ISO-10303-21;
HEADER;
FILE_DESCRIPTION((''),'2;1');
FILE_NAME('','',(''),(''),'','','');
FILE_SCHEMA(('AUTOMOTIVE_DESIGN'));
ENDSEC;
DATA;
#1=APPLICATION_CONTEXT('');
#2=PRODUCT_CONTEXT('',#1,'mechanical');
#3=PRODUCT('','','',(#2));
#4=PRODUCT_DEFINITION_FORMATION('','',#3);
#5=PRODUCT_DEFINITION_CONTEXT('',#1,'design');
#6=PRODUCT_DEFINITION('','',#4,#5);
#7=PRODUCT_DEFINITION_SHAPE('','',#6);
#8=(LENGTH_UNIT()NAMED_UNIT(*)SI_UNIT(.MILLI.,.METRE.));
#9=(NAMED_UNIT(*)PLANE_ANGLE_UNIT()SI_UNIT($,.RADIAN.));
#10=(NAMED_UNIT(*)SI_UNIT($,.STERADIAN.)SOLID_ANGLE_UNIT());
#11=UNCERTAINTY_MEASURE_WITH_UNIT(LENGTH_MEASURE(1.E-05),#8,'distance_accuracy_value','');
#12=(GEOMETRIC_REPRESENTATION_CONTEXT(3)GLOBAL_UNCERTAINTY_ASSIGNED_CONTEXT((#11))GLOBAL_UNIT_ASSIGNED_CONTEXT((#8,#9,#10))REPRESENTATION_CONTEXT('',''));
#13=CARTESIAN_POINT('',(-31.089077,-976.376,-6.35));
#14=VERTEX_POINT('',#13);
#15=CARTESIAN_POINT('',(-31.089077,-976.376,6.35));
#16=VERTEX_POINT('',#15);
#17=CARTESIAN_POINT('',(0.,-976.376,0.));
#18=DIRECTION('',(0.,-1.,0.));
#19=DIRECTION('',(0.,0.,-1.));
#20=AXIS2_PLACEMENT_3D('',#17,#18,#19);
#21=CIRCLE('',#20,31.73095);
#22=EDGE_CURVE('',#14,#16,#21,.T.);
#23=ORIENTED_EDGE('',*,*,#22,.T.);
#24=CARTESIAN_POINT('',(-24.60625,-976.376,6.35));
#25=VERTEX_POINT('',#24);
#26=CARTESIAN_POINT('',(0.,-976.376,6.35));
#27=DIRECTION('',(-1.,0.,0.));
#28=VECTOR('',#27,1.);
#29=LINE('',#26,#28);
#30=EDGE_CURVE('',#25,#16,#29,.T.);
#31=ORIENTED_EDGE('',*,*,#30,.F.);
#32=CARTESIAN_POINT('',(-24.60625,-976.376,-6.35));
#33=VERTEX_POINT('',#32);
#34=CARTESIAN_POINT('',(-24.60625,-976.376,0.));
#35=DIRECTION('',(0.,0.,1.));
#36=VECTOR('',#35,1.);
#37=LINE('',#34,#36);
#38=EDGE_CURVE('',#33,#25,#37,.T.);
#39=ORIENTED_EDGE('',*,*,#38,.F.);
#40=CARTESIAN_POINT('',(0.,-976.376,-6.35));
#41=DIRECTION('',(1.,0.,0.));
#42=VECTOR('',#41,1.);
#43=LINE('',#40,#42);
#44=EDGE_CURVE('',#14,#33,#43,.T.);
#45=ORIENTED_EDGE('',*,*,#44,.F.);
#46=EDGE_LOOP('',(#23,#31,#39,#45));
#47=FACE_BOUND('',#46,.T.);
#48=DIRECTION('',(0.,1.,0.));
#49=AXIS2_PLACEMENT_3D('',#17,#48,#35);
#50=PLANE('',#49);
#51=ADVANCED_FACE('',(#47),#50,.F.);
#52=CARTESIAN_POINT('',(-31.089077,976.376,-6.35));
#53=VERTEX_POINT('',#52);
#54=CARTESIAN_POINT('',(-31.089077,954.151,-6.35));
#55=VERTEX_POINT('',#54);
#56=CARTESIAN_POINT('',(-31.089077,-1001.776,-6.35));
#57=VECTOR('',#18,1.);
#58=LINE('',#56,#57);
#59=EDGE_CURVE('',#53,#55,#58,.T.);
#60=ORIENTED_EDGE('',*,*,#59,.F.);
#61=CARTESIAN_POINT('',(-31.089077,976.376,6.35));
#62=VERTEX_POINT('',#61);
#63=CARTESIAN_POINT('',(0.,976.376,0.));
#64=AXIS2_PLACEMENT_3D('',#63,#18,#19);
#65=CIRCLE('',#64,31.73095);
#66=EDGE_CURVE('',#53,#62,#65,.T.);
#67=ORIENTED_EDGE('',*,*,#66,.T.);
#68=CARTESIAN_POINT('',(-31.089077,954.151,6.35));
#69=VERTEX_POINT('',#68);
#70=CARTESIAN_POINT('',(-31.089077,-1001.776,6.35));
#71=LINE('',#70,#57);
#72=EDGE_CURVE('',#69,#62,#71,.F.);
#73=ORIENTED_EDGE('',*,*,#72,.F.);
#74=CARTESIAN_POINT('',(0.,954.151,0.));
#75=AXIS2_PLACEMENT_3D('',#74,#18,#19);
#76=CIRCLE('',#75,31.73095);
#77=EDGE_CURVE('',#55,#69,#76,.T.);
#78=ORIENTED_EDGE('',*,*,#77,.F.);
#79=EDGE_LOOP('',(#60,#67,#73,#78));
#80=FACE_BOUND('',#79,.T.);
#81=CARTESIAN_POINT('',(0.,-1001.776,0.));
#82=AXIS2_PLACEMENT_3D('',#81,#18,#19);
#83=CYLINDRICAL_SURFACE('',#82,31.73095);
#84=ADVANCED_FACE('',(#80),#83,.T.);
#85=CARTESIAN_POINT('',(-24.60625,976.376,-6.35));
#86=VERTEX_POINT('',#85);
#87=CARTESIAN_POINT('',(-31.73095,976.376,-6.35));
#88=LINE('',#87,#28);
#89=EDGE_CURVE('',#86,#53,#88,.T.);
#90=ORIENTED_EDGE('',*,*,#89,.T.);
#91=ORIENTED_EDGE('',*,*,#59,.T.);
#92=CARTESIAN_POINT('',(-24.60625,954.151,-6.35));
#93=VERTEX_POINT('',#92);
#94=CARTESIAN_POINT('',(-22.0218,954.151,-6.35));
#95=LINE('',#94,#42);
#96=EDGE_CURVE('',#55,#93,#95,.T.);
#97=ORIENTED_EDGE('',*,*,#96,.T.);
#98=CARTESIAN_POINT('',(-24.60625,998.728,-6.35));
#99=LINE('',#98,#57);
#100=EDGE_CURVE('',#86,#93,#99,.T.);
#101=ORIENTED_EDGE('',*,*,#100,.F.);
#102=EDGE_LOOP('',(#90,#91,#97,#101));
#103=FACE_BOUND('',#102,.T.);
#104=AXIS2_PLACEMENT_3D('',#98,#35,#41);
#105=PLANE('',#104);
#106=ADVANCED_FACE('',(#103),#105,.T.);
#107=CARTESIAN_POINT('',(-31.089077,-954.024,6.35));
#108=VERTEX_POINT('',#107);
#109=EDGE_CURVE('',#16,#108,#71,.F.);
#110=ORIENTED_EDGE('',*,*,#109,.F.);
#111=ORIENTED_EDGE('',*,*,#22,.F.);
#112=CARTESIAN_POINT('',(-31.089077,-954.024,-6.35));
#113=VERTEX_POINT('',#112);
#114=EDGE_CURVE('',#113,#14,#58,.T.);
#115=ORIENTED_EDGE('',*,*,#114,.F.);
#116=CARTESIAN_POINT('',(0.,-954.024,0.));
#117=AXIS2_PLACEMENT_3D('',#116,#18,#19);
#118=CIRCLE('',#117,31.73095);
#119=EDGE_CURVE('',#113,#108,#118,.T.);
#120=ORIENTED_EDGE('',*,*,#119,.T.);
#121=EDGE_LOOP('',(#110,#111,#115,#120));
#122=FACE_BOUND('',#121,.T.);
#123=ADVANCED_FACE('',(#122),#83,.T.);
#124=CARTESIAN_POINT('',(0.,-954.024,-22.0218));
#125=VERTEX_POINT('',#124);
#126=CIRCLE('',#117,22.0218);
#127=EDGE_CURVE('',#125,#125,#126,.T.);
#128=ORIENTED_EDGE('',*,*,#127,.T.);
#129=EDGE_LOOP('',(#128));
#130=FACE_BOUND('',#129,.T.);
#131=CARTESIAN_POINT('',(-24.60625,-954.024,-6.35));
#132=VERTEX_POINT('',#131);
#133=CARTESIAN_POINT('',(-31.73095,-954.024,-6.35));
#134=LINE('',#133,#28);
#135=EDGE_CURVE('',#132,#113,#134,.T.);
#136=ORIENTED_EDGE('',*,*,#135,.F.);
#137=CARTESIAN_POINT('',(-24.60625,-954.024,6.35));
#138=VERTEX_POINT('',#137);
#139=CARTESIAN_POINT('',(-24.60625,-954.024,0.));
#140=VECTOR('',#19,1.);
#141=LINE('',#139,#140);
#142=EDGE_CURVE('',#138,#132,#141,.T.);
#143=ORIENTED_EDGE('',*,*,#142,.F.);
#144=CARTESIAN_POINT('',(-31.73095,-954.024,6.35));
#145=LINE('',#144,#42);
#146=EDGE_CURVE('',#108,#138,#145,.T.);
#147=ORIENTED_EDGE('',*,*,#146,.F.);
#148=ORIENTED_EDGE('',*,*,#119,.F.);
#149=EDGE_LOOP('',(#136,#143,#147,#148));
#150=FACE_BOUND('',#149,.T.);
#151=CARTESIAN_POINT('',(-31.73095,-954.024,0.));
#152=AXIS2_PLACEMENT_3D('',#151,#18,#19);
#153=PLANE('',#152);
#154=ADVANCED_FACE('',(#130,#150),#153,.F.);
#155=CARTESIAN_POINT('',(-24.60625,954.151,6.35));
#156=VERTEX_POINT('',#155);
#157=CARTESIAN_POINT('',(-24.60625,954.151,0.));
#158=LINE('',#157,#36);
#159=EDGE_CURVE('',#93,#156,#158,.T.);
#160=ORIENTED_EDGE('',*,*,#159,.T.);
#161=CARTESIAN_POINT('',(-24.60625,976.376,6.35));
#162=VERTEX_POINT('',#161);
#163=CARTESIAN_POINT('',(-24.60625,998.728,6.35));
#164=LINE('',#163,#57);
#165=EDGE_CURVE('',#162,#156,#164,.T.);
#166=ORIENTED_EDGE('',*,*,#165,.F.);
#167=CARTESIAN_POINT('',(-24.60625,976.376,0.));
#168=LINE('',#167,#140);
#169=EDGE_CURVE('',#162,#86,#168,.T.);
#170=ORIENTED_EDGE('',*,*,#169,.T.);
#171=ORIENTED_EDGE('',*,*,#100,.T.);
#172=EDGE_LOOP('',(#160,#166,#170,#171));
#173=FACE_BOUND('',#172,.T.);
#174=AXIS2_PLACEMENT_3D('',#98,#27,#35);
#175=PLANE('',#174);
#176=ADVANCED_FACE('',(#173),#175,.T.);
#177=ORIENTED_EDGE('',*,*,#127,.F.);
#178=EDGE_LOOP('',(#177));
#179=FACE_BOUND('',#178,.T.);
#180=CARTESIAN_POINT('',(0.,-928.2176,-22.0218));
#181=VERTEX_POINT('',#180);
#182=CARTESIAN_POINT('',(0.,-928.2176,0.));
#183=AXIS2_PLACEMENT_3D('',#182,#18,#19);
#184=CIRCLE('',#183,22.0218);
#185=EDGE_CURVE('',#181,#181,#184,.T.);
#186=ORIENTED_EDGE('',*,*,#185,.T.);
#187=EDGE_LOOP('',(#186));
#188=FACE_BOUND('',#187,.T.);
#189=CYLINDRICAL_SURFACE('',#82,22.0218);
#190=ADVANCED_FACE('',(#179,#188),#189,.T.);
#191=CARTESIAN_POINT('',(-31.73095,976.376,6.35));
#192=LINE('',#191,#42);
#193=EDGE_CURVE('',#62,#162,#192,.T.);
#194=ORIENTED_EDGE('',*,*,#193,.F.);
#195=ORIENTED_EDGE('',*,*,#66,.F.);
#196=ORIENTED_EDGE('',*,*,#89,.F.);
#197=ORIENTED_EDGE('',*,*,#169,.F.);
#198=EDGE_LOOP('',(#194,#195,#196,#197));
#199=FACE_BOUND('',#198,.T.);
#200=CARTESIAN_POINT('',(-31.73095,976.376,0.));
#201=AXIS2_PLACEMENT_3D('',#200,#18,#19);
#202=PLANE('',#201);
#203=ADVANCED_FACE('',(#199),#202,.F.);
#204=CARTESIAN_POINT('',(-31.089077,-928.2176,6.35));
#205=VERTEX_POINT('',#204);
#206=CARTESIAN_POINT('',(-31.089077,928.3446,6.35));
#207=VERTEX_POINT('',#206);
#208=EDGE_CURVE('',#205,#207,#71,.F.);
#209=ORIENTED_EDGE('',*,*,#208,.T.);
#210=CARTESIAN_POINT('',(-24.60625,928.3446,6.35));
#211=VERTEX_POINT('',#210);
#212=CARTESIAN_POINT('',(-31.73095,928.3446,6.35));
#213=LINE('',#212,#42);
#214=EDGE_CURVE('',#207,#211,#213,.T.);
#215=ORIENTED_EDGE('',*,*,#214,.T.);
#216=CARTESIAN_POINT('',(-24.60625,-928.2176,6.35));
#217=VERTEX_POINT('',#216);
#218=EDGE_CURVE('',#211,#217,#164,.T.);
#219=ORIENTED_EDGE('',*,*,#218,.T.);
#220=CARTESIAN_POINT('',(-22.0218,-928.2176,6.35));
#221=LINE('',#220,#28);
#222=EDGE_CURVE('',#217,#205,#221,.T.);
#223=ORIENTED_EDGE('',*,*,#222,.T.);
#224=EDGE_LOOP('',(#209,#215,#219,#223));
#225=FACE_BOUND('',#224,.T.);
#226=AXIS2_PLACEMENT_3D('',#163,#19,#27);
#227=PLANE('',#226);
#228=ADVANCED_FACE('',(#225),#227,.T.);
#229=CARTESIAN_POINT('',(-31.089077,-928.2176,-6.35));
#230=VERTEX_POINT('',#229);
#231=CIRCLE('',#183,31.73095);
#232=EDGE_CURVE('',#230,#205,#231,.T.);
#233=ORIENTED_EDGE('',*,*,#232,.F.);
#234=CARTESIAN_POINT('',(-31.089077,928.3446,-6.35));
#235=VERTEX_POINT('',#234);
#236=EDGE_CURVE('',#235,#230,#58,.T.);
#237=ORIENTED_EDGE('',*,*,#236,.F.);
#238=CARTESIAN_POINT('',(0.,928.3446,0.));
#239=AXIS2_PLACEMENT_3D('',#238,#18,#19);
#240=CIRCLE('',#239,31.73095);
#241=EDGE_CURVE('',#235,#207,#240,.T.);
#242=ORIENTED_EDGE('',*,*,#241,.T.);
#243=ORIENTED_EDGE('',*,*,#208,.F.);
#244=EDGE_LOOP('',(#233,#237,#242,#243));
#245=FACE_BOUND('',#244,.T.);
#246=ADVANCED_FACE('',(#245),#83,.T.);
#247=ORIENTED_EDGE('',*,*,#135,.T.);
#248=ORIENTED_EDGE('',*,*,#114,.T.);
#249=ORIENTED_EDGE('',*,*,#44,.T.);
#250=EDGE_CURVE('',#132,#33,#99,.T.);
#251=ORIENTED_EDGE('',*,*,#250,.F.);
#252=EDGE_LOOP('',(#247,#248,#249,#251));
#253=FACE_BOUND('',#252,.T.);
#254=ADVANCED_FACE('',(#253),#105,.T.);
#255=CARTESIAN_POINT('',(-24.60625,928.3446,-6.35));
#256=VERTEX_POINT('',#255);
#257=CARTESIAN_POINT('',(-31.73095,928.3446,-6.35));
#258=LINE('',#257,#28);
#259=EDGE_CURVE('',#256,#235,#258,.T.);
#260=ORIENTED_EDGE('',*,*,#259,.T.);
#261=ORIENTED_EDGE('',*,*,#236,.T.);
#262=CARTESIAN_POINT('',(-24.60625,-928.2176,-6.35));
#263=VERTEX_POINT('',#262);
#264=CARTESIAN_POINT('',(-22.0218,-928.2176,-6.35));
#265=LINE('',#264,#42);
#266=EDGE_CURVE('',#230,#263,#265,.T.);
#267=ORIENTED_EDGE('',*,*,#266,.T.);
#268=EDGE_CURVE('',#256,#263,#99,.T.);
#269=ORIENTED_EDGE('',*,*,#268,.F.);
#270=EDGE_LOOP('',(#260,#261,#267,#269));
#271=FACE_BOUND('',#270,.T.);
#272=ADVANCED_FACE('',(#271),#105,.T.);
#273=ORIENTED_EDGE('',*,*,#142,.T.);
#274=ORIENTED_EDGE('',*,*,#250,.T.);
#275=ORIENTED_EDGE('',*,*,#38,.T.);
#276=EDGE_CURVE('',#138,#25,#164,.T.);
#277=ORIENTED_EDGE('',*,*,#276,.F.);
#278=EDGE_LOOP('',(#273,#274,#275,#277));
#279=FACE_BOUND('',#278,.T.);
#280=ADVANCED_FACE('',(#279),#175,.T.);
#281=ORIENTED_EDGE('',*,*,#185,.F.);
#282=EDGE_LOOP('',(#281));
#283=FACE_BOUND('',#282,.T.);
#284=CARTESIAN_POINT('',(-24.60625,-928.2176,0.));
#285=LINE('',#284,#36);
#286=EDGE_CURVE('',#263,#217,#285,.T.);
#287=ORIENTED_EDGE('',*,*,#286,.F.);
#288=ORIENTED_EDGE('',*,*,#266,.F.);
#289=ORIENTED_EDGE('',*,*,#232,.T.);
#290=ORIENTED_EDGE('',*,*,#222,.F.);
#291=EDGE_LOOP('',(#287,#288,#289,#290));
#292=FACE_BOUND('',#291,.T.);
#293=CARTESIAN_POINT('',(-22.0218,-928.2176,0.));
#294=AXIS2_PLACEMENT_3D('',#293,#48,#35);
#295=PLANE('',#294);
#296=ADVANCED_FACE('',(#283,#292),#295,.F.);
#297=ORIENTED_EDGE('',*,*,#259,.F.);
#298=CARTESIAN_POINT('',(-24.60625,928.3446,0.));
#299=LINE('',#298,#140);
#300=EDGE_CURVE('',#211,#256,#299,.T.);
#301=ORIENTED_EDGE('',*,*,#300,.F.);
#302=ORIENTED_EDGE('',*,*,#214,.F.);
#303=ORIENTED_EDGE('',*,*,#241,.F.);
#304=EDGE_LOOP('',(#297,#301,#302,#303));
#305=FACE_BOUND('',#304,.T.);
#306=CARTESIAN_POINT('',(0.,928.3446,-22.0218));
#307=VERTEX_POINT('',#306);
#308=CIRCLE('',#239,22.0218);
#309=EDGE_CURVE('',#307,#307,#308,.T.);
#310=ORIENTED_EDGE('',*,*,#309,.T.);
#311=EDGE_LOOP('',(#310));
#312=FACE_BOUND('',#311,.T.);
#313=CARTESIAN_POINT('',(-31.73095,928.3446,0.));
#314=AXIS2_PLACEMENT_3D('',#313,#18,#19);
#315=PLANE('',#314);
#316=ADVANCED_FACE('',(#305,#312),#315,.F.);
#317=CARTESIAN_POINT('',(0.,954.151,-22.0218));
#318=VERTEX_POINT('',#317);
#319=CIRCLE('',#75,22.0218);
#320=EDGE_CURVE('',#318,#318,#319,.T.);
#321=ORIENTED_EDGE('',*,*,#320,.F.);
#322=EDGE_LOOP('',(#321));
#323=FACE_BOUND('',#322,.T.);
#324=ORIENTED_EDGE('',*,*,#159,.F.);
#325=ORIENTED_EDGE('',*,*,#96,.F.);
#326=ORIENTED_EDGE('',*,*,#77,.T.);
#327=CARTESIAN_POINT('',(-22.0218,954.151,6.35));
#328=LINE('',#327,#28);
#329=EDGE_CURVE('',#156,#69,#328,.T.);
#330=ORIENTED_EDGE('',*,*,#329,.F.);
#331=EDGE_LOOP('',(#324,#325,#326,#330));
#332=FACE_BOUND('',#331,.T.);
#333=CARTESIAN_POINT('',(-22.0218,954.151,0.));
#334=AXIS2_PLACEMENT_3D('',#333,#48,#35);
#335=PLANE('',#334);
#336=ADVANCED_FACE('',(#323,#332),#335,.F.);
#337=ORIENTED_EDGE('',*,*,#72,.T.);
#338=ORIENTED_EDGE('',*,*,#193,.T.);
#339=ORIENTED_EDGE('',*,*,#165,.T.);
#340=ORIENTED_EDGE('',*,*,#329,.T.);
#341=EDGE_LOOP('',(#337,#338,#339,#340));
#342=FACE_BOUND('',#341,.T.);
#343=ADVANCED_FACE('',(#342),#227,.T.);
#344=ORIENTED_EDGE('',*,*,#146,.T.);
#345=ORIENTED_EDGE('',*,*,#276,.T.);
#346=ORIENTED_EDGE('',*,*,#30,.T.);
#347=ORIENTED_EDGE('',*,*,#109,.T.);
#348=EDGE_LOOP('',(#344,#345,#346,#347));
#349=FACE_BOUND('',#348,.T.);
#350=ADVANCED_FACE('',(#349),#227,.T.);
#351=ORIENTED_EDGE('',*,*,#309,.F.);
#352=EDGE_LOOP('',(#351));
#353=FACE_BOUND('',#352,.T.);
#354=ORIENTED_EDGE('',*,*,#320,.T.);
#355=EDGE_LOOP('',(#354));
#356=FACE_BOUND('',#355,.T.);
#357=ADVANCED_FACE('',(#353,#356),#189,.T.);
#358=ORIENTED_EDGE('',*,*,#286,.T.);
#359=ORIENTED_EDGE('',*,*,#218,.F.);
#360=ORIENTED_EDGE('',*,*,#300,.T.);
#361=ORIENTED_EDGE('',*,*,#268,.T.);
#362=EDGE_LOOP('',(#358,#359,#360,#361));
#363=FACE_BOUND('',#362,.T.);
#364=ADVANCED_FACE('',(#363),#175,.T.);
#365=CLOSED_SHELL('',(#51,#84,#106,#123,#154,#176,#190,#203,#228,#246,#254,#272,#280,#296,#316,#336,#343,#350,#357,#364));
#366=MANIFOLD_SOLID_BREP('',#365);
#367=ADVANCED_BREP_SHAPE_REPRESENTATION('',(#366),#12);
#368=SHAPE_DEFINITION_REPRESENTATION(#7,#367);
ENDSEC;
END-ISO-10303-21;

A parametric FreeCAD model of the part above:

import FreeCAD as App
import Part
import Sketcher
from FreeCAD import Vector
Q = App.Units.Quantity

doc = App.newDocument("Part")
body = doc.addObject("PartDesign::Body", "Body")

sketch1 = body.newObject("Sketcher::SketchObject", "Sketch")
sketch1.AttachmentSupport = (doc.getObject("XY_Plane"), [""])
sketch1.MapMode = "FlatFace"
sketch1.addGeometry(Part.LineSegment(Vector(-32, -976, 0), Vector(0, -976, 0)), False)
sketch1.addGeometry(Part.LineSegment(Vector(0, -976, 0), Vector(0, 976, 0)), False)
sketch1.addGeometry(Part.LineSegment(Vector(0, 976, 0), Vector(-32, 976, 0)), False)
sketch1.addGeometry(Part.LineSegment(Vector(-32, 976, 0), Vector(-32, 954, 0)), False)
sketch1.addGeometry(Part.LineSegment(Vector(-32, 954, 0), Vector(-22, 954, 0)), False)
sketch1.addGeometry(Part.LineSegment(Vector(-22, 954, 0), Vector(-22, 928, 0)), False)
sketch1.addGeometry(Part.LineSegment(Vector(-22, 928, 0), Vector(-32, 928, 0)), False)
sketch1.addGeometry(Part.LineSegment(Vector(-32, 928, 0), Vector(-32, -928, 0)), False)
sketch1.addGeometry(Part.LineSegment(Vector(-32, -928, 0), Vector(-22, -928, 0)), False)
sketch1.addGeometry(Part.LineSegment(Vector(-22, -928, 0), Vector(-22, -954, 0)), False)
sketch1.addGeometry(Part.LineSegment(Vector(-22, -954, 0), Vector(-32, -954, 0)), False)
sketch1.addGeometry(Part.LineSegment(Vector(-32, -954, 0), Vector(-32, -976, 0)), False)
sketch1.addConstraint(Sketcher.Constraint("Coincident", 0, 2, 1, 1))
sketch1.addConstraint(Sketcher.Constraint("Coincident", 1, 2, 2, 1))
sketch1.addConstraint(Sketcher.Constraint("Coincident", 2, 2, 3, 1))
sketch1.addConstraint(Sketcher.Constraint("Coincident", 3, 2, 4, 1))
sketch1.addConstraint(Sketcher.Constraint("Coincident", 4, 2, 5, 1))
sketch1.addConstraint(Sketcher.Constraint("Coincident", 5, 2, 6, 1))
sketch1.addConstraint(Sketcher.Constraint("Coincident", 6, 2, 7, 1))
sketch1.addConstraint(Sketcher.Constraint("Coincident", 7, 2, 8, 1))
sketch1.addConstraint(Sketcher.Constraint("Coincident", 8, 2, 9, 1))
sketch1.addConstraint(Sketcher.Constraint("Coincident", 9, 2, 10, 1))
sketch1.addConstraint(Sketcher.Constraint("Coincident", 10, 2, 11, 1))
sketch1.addConstraint(Sketcher.Constraint("Coincident", 11, 2, 0, 1))
sketch1.addConstraint(Sketcher.Constraint("Horizontal", 0))
sketch1.addConstraint(Sketcher.Constraint("Vertical", 1))
sketch1.addConstraint(Sketcher.Constraint("Horizontal", 2))
sketch1.addConstraint(Sketcher.Constraint("Vertical", 3))
sketch1.addConstraint(Sketcher.Constraint("Horizontal", 4))
sketch1.addConstraint(Sketcher.Constraint("Vertical", 5))
sketch1.addConstraint(Sketcher.Constraint("Horizontal", 6))
sketch1.addConstraint(Sketcher.Constraint("Vertical", 7))
sketch1.addConstraint(Sketcher.Constraint("Horizontal", 8))
sketch1.addConstraint(Sketcher.Constraint("Vertical", 9))
sketch1.addConstraint(Sketcher.Constraint("Horizontal", 10))
sketch1.addConstraint(Sketcher.Constraint("Vertical", 11))
sketch1.addConstraint(Sketcher.Constraint("Symmetric", 0, 2, 1, 2, -1, 1))
sketch1.addConstraint(Sketcher.Constraint("Vertical", 3, 2, 6, 2))
sketch1.addConstraint(Sketcher.Constraint("Vertical", 5, 2, 8, 2))
sketch1.addConstraint(Sketcher.Constraint("Vertical", 7, 2, 10, 2))
sketch1.addConstraint(Sketcher.Constraint("Equal", 5, 9))
sketch1.addConstraint(Sketcher.Constraint("DistanceY", 1, 1, 1, 2, Q("76.88 in")))
sketch1.addConstraint(Sketcher.Constraint("DistanceY", 11, 2, 11, 1, Q("0.88 in")))
sketch1.addConstraint(Sketcher.Constraint("DistanceY", 3, 2, 3, 1, Q("0.875 in")))
sketch1.addConstraint(Sketcher.Constraint("DistanceY", 5, 2, 5, 1, Q("1.016 in")))
sketch1.addConstraint(Sketcher.Constraint("DistanceX", 4, 2, -1, 1, Q("0.867 in")))
sketch1.addConstraint(Sketcher.Constraint("DistanceX", 0, 1, 0, 2, 31.73095))
revolution = body.newObject("PartDesign::Revolution", "Revolution")
revolution.Profile = sketch1
revolution.ReferenceAxis = (sketch1, ["V_Axis"])
revolution.Angle = 360

sketch2 = body.newObject("Sketcher::SketchObject", "Sketch001")
sketch2.AttachmentSupport = (doc.getObject("XZ_Plane"), [""])
sketch2.MapMode = "FlatFace"
sketch2.AttachmentOffset = App.Placement(Vector(0, 0, 39.32 * 25.4), App.Rotation())
sketch2.addGeometry(Part.LineSegment(Vector(-25, 6, 0), Vector(-25, -6, 0)), False)
sketch2.addGeometry(Part.LineSegment(Vector(-25, -6, 0), Vector(-88, -6, 0)), False)
sketch2.addGeometry(Part.LineSegment(Vector(-88, -6, 0), Vector(-88, 6, 0)), False)
sketch2.addGeometry(Part.LineSegment(Vector(-88, 6, 0), Vector(-25, 6, 0)), False)
sketch2.addConstraint(Sketcher.Constraint("Coincident", 0, 2, 1, 1))
sketch2.addConstraint(Sketcher.Constraint("Coincident", 1, 2, 2, 1))
sketch2.addConstraint(Sketcher.Constraint("Coincident", 2, 2, 3, 1))
sketch2.addConstraint(Sketcher.Constraint("Coincident", 3, 2, 0, 1))
sketch2.addConstraint(Sketcher.Constraint("Vertical", 0))
sketch2.addConstraint(Sketcher.Constraint("Horizontal", 1))
sketch2.addConstraint(Sketcher.Constraint("Vertical", 2))
sketch2.addConstraint(Sketcher.Constraint("Horizontal", 3))
sketch2.addConstraint(Sketcher.Constraint("DistanceY", 0, 2, 0, 1, Q("0.5 in")))
sketch2.addConstraint(Sketcher.Constraint("DistanceY", 0, 2, -1, 1, Q("0.25 in")))
sketch2.addConstraint(Sketcher.Constraint("DistanceX", 1, 2, 1, 1, Q("2.4985 in")))
sketch2.addConstraint(Sketcher.Constraint("DistanceX", 0, 2, -1, 1, Q("0.96875 in")))
pocket1 = body.newObject("PartDesign::Pocket", "Pocket")
pocket1.Profile = sketch2
pocket1.Length = Q("78.64 in")

doc.recompute()
